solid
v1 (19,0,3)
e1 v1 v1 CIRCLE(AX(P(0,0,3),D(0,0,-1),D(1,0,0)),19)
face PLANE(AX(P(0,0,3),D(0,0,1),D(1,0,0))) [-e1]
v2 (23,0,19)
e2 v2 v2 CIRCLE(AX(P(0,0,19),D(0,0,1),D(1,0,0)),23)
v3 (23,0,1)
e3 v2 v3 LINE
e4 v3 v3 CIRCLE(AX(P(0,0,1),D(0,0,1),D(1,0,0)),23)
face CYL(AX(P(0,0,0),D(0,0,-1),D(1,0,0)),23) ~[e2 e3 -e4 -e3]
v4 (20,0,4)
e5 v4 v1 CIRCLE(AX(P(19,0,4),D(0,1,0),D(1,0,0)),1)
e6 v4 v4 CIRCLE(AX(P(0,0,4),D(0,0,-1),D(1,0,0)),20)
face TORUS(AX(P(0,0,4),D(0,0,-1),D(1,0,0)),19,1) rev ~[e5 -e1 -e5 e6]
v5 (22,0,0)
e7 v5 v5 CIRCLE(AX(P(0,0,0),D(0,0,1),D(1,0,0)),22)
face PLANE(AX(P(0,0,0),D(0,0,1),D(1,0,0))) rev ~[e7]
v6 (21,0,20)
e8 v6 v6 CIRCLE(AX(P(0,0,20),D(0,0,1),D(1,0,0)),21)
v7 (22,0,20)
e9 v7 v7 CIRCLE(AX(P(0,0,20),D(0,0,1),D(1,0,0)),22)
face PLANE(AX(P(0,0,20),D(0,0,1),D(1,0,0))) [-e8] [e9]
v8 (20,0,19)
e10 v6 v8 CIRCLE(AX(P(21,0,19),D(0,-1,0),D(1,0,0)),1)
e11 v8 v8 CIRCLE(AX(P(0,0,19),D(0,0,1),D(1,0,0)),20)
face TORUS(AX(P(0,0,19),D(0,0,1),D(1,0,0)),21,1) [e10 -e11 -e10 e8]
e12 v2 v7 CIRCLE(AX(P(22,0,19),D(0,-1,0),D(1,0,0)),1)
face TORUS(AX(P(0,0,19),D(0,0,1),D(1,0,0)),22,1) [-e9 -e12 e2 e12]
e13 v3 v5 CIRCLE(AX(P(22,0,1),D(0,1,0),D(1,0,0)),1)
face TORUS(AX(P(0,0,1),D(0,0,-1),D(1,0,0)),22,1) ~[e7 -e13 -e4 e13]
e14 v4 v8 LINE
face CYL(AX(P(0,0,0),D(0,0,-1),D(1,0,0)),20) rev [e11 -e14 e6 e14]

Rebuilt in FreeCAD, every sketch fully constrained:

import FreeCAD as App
import Part
import Sketcher
from FreeCAD import Vector

doc = App.newDocument("Part")
body = doc.addObject("PartDesign::Body", "Body")

# Sketch on XY plane
sketch1 = doc.addObject("Sketcher::SketchObject", "Sketch")
body.addObject(sketch1)
sketch1.AttachmentSupport = (doc.XY_Plane, [""])
sketch1.MapMode = "FlatFace"
sketch1.addGeometry([
    Part.Circle(Vector(0, 0, 0), Vector(0, 0, 1), 23),
    Part.Circle(Vector(0, 0, 0), Vector(0, 0, 1), 20),
], False)
sketch1.addConstraint([
    Sketcher.Constraint("Coincident", 0, 3, -1, 1),
    Sketcher.Constraint("Coincident", 1, 3, -1, 1),
    Sketcher.Constraint("Diameter", 0, 46.0),
    Sketcher.Constraint("Diameter", 1, 40.0),
])
pad1 = doc.addObject("PartDesign::Pad", "Pad")
body.addObject(pad1)
pad1.Profile = sketch1
pad1.Length = 20

# Sketch on XY plane
sketch2 = doc.addObject("Sketcher::SketchObject", "Sketch001")
body.addObject(sketch2)
sketch2.AttachmentSupport = (doc.XY_Plane, [""])
sketch2.MapMode = "FlatFace"
sketch2.addGeometry(Part.Circle(Vector(0, 0, 0), Vector(0, 0, 1), 23), False)
sketch2.addConstraint([
    Sketcher.Constraint("Coincident", 0, 3, -1, 1),
    Sketcher.Constraint("Diameter", 0, 46.0),
])
pad2 = doc.addObject("PartDesign::Pad", "Pad001")
body.addObject(pad2)
pad2.Profile = sketch2
pad2.Length = 3
doc.recompute()

fillet = doc.addObject("PartDesign::Fillet", "Fillet")
body.addObject(fillet)
fillet.Base = (pad2, ["Edge1"])
fillet.UseAllEdges = True
fillet.Radius = 1

doc.recompute()
